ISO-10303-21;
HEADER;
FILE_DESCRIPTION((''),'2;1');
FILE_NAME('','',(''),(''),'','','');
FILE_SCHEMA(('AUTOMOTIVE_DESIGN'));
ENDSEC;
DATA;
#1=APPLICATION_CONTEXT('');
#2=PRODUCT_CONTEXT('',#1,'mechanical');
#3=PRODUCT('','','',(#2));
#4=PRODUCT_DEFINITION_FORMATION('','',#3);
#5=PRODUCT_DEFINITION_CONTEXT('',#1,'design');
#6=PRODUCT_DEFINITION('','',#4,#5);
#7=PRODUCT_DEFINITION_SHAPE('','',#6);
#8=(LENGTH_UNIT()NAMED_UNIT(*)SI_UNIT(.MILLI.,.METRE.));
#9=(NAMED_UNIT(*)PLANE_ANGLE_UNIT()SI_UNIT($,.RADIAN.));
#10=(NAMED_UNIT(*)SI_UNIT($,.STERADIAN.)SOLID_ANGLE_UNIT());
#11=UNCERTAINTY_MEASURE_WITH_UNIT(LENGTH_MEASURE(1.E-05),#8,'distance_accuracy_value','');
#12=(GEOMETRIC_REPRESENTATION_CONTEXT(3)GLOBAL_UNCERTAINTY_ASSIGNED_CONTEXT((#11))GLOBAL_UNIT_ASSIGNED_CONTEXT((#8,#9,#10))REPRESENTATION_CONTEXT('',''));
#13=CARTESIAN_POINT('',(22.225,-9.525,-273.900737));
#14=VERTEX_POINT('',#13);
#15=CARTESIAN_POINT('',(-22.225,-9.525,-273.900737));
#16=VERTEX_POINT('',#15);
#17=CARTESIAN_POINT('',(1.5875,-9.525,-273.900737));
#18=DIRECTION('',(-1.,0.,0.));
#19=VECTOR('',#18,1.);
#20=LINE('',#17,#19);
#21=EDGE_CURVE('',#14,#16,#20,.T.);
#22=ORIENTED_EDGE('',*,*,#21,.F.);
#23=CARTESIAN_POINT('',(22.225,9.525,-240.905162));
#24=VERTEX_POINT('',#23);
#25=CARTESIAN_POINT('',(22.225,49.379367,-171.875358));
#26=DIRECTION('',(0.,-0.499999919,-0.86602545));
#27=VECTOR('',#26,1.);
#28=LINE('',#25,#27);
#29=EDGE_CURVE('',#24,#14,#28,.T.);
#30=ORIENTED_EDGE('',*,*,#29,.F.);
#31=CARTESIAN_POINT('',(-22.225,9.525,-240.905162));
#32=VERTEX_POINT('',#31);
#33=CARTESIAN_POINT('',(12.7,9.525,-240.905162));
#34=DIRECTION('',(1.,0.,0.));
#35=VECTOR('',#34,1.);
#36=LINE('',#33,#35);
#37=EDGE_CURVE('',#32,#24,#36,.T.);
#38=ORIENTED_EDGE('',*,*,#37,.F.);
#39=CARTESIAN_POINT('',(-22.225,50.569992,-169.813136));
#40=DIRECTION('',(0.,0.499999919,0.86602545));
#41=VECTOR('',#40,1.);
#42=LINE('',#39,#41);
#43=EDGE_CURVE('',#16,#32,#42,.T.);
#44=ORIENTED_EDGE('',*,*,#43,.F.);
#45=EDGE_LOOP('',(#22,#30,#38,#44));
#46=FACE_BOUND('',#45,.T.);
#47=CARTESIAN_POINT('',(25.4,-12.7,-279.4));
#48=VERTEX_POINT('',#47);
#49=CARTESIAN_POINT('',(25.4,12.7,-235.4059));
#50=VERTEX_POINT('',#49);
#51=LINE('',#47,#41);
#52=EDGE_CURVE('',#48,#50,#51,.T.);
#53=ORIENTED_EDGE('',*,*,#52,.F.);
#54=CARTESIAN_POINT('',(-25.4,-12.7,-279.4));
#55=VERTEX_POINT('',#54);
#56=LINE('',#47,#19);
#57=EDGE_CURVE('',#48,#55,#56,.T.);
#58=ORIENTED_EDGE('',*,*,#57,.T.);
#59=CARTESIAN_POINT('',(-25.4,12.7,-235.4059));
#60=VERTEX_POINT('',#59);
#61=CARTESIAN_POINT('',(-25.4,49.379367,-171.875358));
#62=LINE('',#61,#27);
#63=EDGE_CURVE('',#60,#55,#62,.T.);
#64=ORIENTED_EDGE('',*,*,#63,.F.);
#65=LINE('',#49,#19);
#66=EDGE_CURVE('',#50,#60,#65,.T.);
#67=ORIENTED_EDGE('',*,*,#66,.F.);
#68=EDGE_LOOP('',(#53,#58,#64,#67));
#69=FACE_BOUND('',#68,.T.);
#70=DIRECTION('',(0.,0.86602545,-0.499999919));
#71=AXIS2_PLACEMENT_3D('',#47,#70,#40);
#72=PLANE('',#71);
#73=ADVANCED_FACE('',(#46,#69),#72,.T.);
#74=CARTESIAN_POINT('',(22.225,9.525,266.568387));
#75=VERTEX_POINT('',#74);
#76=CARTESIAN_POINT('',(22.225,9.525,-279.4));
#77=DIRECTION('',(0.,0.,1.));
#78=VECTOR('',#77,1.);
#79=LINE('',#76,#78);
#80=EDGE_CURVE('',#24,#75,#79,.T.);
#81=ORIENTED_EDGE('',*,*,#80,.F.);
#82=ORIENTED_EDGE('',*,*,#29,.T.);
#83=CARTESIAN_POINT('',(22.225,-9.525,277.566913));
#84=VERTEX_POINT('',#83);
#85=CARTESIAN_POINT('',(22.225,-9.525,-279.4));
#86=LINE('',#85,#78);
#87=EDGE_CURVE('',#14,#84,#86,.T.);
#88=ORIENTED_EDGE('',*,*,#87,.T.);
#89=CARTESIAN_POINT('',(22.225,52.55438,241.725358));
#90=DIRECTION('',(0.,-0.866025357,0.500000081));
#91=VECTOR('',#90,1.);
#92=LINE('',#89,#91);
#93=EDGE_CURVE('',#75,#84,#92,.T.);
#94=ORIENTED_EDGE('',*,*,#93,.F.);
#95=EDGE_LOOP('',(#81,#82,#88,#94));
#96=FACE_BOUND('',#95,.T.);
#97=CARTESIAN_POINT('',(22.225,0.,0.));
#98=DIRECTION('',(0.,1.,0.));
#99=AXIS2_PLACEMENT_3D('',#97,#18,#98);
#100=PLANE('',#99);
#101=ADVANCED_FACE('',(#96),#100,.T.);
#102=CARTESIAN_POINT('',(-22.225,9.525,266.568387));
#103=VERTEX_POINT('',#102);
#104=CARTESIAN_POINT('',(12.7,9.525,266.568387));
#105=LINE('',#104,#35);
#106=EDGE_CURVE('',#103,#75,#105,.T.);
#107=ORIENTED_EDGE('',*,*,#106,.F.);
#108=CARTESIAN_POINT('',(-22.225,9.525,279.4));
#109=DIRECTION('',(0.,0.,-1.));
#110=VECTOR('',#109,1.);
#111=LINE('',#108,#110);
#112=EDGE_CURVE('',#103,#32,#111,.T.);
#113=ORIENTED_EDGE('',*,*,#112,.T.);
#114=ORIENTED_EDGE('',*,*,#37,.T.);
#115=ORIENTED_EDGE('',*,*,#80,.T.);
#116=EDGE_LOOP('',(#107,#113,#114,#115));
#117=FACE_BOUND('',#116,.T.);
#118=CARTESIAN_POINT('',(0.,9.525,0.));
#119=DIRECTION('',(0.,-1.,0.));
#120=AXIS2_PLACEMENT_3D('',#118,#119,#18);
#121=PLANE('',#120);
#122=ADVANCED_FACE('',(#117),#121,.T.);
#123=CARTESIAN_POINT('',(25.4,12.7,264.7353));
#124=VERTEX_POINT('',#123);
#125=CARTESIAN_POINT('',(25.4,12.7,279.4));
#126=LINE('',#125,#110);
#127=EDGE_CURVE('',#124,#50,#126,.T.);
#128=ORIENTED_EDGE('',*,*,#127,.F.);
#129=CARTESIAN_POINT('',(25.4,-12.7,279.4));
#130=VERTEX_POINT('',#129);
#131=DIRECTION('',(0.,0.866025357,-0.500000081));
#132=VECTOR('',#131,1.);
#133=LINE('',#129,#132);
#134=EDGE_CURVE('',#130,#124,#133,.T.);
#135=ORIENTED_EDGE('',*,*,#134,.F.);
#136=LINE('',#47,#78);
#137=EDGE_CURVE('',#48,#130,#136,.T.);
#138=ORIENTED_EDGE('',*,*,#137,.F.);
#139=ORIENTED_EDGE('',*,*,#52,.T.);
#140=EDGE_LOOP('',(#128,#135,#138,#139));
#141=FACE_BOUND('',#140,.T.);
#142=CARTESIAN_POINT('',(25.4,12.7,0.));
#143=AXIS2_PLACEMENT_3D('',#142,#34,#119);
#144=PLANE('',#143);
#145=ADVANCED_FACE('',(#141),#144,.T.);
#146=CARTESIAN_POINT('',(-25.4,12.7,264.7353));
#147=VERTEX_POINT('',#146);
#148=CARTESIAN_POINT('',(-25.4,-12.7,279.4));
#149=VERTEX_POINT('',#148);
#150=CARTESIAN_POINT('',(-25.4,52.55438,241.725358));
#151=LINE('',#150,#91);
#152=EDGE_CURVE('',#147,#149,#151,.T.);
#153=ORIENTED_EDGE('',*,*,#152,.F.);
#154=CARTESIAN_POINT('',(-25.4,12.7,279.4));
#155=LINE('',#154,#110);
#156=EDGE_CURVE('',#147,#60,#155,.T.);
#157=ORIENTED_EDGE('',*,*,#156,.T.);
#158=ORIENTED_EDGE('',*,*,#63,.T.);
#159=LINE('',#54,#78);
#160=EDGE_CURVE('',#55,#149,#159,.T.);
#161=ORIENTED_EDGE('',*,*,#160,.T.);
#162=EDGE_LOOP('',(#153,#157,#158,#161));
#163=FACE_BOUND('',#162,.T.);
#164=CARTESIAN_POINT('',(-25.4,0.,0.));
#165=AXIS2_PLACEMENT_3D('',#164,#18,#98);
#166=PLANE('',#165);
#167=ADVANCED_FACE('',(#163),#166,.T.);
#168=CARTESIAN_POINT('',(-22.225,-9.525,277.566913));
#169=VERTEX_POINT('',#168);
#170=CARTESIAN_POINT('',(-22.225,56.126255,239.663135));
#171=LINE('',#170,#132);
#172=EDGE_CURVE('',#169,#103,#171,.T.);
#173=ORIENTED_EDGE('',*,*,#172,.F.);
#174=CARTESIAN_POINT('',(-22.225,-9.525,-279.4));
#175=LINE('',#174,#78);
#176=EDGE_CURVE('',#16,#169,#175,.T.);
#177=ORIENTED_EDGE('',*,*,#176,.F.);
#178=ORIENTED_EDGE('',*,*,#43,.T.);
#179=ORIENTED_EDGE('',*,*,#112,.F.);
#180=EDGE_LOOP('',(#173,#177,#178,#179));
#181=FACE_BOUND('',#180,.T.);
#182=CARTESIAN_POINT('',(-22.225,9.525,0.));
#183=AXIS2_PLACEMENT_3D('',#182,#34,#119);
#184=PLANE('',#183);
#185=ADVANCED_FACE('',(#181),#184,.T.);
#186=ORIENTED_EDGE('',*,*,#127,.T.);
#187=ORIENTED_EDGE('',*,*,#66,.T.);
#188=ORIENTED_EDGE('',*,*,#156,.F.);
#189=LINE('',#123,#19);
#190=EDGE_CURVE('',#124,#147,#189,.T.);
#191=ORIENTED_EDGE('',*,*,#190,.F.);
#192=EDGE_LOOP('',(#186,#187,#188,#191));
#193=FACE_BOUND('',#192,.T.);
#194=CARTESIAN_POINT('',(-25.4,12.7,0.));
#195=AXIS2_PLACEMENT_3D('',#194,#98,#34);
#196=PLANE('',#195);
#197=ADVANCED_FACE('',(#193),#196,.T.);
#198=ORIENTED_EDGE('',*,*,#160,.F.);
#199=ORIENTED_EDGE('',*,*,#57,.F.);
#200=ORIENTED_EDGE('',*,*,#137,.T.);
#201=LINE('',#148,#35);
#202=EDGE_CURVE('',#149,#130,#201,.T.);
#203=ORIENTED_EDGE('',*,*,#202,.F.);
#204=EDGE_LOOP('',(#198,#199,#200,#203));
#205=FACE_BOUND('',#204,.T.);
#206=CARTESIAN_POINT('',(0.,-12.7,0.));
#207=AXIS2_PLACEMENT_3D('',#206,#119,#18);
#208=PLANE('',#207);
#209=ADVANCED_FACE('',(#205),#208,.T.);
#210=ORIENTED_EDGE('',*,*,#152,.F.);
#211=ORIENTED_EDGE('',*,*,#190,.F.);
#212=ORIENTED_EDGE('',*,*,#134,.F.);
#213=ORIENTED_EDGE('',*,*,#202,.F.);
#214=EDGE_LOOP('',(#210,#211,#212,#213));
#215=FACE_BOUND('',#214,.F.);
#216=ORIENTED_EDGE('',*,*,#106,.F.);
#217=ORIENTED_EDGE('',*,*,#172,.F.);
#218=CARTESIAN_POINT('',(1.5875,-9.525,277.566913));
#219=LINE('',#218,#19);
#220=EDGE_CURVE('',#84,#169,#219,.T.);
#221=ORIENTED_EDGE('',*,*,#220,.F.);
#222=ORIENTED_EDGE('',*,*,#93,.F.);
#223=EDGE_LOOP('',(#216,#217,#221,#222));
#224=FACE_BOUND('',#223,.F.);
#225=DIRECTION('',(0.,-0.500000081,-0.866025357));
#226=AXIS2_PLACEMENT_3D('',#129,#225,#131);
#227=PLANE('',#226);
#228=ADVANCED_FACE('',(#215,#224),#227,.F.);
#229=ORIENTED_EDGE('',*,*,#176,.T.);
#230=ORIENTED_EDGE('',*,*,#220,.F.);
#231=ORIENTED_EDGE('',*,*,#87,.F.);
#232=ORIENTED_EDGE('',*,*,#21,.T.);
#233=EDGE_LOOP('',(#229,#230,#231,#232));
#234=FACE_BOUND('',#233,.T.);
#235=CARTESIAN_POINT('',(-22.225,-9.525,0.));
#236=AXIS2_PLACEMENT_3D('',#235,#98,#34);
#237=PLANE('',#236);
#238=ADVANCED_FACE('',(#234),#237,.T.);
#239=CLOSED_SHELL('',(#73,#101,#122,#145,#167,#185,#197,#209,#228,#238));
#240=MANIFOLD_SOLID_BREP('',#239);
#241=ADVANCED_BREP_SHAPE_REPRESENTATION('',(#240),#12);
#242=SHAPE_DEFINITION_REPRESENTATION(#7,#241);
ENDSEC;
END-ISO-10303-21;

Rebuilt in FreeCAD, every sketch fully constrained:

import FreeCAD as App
import Part
import Sketcher

V = App.Vector
Q = App.Units.Quantity

doc = App.newDocument("Part")
body = doc.addObject("PartDesign::Body", "Body")

# Sketch on XY plane
sketch1 = body.newObject("Sketcher::SketchObject", "Sketch")
sketch1.AttachmentSupport = (doc.getObject("XY_Plane"), [""])
sketch1.MapMode = "FlatFace"
sketch1.addGeometry([
    Part.LineSegment(V(-25, 13, 0), V(-25, -13, 0)),  # 0
    Part.LineSegment(V(-25, -13, 0), V(25, -13, 0)),  # 1
    Part.LineSegment(V(25, -13, 0), V(25, 13, 0)),  # 2
    Part.LineSegment(V(25, 13, 0), V(-25, 13, 0)),  # 3
    Part.LineSegment(V(-22, 10, 0), V(22, 10, 0)),  # 4
    Part.LineSegment(V(22, 10, 0), V(22, -10, 0)),  # 5
    Part.LineSegment(V(22, -10, 0), V(-22, -10, 0)),  # 6
    Part.LineSegment(V(-22, -10, 0), V(-22, 10, 0)),  # 7
], False)
sketch1.addConstraint([
    Sketcher.Constraint("Coincident", 0, 2, 1, 1),
    Sketcher.Constraint("Coincident", 1, 2, 2, 1),
    Sketcher.Constraint("Coincident", 2, 2, 3, 1),
    Sketcher.Constraint("Coincident", 3, 2, 0, 1),
    Sketcher.Constraint("Coincident", 4, 2, 5, 1),
    Sketcher.Constraint("Coincident", 5, 2, 6, 1),
    Sketcher.Constraint("Coincident", 6, 2, 7, 1),
    Sketcher.Constraint("Coincident", 7, 2, 4, 1),
    Sketcher.Constraint("Vertical", 0),
    Sketcher.Constraint("Horizontal", 1),
    Sketcher.Constraint("Vertical", 2),
    Sketcher.Constraint("Horizontal", 3),
    Sketcher.Constraint("Horizontal", 4),
    Sketcher.Constraint("Vertical", 5),
    Sketcher.Constraint("Horizontal", 6),
    Sketcher.Constraint("Vertical", 7),
    Sketcher.Constraint("Symmetric", 0, 2, 2, 2, -1, 1),
    Sketcher.Constraint("Symmetric", 4, 2, 6, 2, -1, 1),
    Sketcher.Constraint("DistanceX", 1, 1, 1, 2, Q("2 in")),
    Sketcher.Constraint("DistanceY", 0, 2, 0, 1, Q("1 in")),
    Sketcher.Constraint("DistanceX", 4, 2, 2, 2, Q("0.125 in")),
    Sketcher.Constraint("DistanceY", 4, 2, 2, 2, Q("0.125 in")),
])
pad1 = body.newObject("PartDesign::Pad", "Pad")
pad1.Profile = sketch1
pad1.Length = Q("22 in")
pad1.Midplane = True

# Sketch on YZ plane
sketch2 = body.newObject("Sketcher::SketchObject", "Sketch001")
sketch2.AttachmentSupport = (doc.getObject("YZ_Plane"), [""])
sketch2.MapMode = "FlatFace"
sketch2.AttachmentOffset = App.Placement(V(0, 0, 1 * 25.4), App.Rotation())
sketch2.addGeometry([
    Part.LineSegment(V(13, 265, 0), V(13, 279, 0)),
    Part.LineSegment(V(13, 279, 0), V(-13, 279, 0)),
    Part.LineSegment(V(-13, 279, 0), V(13, 265, 0)),
], False)
sketch2.addConstraint([
    Sketcher.Constraint("Coincident", 0, 2, 1, 1),
    Sketcher.Constraint("Coincident", 1, 2, 2, 1),
    Sketcher.Constraint("Coincident", 2, 2, 0, 1),
    Sketcher.Constraint("Vertical", 0),
    Sketcher.Constraint("Horizontal", 1),
    Sketcher.Constraint("Angle", 2, Q("-30 deg")),
    Sketcher.Constraint("DistanceX", 1, 2, 1, 1, Q("1 in")),
    Sketcher.Constraint("DistanceY", -1, 1, 0, 2, Q("11 in")),
    Sketcher.Constraint("DistanceX", -1, 1, 0, 2, Q("0.5 in")),
])
pocket1 = body.newObject("PartDesign::Pocket", "Pocket")
pocket1.Profile = sketch2
pocket1.Type = "ThroughAll"

# Sketch on YZ plane
sketch3 = body.newObject("Sketcher::SketchObject", "Sketch002")
sketch3.AttachmentSupport = (doc.getObject("YZ_Plane"), [""])
sketch3.MapMode = "FlatFace"
sketch3.AttachmentOffset = App.Placement(V(0, 0, 1 * 25.4), App.Rotation())
sketch3.addGeometry([
    Part.LineSegment(V(13, -235, 0), V(-13, -279, 0)),
    Part.LineSegment(V(-13, -279, 0), V(13, -279, 0)),
    Part.LineSegment(V(13, -279, 0), V(13, -235, 0)),
], False)
sketch3.addConstraint([
    Sketcher.Constraint("Coincident", 0, 2, 1, 1),
    Sketcher.Constraint("Coincident", 1, 2, 2, 1),
    Sketcher.Constraint("Coincident", 2, 2, 0, 1),
    Sketcher.Constraint("Horizontal", 1),
    Sketcher.Constraint("Vertical", 2),
    Sketcher.Constraint("DistanceX", 1, 1, 1, 2, Q("1 in")),
    Sketcher.Constraint("Distance", 0, Q("2 in")),
    Sketcher.Constraint("DistanceY", 0, 2, -1, 1, Q("11 in")),
    Sketcher.Constraint("DistanceX", 0, 2, -1, 1, Q("0.5 in")),
])
pocket2 = body.newObject("PartDesign::Pocket", "Pocket001")
pocket2.Profile = sketch3
pocket2.Type = "ThroughAll"

doc.recompute()
